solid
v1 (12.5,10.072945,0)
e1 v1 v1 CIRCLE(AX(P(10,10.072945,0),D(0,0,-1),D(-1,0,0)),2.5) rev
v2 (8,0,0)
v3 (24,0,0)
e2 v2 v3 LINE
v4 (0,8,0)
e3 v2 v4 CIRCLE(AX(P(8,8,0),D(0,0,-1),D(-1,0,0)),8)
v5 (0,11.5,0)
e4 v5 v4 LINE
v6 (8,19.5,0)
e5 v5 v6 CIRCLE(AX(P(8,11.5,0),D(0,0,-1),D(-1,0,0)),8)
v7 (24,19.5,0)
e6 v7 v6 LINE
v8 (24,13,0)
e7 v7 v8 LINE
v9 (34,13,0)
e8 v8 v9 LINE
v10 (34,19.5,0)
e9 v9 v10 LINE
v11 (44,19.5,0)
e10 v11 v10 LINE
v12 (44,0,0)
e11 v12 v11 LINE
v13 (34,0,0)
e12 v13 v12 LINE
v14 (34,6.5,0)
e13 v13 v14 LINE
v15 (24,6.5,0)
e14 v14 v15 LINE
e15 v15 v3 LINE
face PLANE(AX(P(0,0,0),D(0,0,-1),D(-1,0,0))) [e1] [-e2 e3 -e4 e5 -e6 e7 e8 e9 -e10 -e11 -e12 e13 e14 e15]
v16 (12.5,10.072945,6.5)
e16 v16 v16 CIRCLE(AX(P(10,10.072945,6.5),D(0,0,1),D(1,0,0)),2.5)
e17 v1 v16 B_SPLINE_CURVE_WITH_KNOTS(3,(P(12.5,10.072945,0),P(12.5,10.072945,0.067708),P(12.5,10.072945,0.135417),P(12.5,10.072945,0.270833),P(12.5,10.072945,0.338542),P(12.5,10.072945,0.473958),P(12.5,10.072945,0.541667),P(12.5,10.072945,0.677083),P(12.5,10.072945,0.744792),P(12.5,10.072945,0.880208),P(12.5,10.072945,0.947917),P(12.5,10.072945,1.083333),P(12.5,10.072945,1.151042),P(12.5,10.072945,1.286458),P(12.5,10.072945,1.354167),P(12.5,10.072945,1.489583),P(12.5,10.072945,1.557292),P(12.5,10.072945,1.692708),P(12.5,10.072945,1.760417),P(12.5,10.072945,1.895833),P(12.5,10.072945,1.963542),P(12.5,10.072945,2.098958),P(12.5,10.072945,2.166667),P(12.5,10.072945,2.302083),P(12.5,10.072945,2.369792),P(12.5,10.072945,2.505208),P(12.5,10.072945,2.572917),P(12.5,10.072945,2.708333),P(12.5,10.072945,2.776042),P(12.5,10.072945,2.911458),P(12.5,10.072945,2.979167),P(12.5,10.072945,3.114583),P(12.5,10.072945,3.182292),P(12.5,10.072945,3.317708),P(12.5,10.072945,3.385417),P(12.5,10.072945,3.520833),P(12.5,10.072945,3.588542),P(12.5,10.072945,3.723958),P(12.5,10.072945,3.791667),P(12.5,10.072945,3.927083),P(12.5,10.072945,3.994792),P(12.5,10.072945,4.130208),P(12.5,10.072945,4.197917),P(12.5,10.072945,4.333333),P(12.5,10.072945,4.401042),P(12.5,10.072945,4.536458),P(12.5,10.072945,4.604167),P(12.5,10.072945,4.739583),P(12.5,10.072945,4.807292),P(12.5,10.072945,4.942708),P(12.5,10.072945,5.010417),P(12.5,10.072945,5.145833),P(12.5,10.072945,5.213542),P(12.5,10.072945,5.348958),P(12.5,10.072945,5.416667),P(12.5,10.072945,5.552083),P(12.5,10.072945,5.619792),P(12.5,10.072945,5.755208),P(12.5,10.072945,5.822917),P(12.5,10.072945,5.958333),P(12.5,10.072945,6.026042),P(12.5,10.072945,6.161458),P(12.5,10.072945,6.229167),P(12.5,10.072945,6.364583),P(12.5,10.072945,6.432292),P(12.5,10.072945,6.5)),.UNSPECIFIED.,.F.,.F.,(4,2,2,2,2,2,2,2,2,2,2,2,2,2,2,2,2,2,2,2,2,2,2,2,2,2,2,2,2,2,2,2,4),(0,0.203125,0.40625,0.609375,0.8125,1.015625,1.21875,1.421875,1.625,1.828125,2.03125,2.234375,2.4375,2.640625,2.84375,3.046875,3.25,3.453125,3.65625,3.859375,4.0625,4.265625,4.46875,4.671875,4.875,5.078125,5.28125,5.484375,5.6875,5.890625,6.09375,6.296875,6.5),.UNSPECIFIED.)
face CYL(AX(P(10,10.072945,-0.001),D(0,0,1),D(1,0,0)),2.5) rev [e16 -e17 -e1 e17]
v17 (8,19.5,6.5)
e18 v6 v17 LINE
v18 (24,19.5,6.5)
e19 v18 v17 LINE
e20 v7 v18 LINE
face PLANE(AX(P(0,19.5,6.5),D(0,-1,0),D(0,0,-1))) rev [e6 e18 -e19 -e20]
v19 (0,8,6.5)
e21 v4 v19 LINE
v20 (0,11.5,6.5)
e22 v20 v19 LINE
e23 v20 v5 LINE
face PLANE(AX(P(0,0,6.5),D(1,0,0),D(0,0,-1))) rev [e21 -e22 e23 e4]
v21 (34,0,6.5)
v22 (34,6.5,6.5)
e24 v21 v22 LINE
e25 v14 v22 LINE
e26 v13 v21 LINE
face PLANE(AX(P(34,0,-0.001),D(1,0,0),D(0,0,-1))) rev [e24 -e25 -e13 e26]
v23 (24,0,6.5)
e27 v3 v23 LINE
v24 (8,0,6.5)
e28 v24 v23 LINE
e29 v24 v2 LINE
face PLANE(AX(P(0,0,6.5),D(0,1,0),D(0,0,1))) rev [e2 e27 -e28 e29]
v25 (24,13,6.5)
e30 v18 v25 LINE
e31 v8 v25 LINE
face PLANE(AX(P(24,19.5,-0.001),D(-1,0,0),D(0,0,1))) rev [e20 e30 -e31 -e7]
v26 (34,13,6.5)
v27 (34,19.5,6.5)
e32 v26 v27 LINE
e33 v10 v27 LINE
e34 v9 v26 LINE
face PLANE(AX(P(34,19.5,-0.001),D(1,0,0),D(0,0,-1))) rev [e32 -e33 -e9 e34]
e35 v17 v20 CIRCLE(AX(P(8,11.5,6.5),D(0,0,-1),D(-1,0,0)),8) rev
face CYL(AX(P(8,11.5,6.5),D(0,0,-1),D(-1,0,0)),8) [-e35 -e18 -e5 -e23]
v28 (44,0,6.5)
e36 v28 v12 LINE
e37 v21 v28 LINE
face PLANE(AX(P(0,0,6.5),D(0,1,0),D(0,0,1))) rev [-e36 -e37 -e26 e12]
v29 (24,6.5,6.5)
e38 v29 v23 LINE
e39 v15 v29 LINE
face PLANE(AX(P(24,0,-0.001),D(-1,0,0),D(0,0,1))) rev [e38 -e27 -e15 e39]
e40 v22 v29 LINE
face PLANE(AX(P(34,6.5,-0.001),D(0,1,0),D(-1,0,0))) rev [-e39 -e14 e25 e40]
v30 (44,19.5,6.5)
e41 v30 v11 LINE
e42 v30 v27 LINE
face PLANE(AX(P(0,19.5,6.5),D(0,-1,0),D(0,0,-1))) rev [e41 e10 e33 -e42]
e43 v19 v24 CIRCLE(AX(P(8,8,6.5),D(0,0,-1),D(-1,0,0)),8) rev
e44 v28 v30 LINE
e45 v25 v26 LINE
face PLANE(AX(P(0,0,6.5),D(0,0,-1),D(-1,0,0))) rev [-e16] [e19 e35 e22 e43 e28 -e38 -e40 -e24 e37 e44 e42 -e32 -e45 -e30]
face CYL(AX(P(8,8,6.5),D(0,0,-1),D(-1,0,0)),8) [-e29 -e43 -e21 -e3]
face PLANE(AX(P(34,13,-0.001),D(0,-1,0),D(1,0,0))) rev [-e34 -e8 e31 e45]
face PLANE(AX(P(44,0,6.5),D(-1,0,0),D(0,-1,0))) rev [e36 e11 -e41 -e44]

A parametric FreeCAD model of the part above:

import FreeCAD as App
import Part
import Sketcher


def edges_at(feature, points):
    """Names of the edges that pass closest to the given points."""
    edges = feature.Shape.Edges
    near = lambda p: min(range(len(edges)), key=lambda i: edges[i].distToShape(Part.Vertex(*p))[0])
    return sorted({f"Edge{near(p) + 1}" for p in points})

doc = App.newDocument("Part")
body = doc.addObject("PartDesign::Body", "Body")

# Sketch on XY plane
sketch1 = body.newObject("Sketcher::SketchObject", "Sketch")
sketch1.AttachmentSupport = (doc.getObject("XY_Plane"), [""])
sketch1.MapMode = "FlatFace"
sketch1.addGeometry(Part.LineSegment(App.Vector(0, 20, 0), App.Vector(0, 0, 0)), False)
sketch1.addGeometry(Part.LineSegment(App.Vector(0, 0, 0), App.Vector(44, 0, 0)), False)
sketch1.addGeometry(Part.LineSegment(App.Vector(44, 0, 0), App.Vector(44, 20, 0)), False)
sketch1.addGeometry(Part.LineSegment(App.Vector(44, 20, 0), App.Vector(0, 20, 0)), False)
sketch1.addConstraint(Sketcher.Constraint("Coincident", 0, 2, 1, 1))
sketch1.addConstraint(Sketcher.Constraint("Coincident", 1, 2, 2, 1))
sketch1.addConstraint(Sketcher.Constraint("Coincident", 2, 2, 3, 1))
sketch1.addConstraint(Sketcher.Constraint("Coincident", 3, 2, 0, 1))
sketch1.addConstraint(Sketcher.Constraint("Vertical", 0))
sketch1.addConstraint(Sketcher.Constraint("Horizontal", 1))
sketch1.addConstraint(Sketcher.Constraint("Vertical", 2))
sketch1.addConstraint(Sketcher.Constraint("Horizontal", 3))
sketch1.addConstraint(Sketcher.Constraint("Coincident", 0, 2, -1, 1))
sketch1.addConstraint(Sketcher.Constraint("DistanceX", 1, 1, 1, 2, 44.0))
sketch1.addConstraint(Sketcher.Constraint("DistanceY", 0, 2, 0, 1, 19.5))
pad1 = body.newObject("PartDesign::Pad", "Pad")
pad1.Profile = sketch1
pad1.Length = 6.5

# Sketch on XY plane
sketch2 = body.newObject("Sketcher::SketchObject", "Sketch001")
sketch2.AttachmentSupport = (doc.getObject("XY_Plane"), [""])
sketch2.MapMode = "FlatFace"
sketch2.AttachmentOffset = App.Placement(App.Vector(0, 0, 6.5), App.Rotation())
sketch2.addGeometry(Part.LineSegment(App.Vector(24, 20, 0), App.Vector(24, 13, 0)), False)
sketch2.addGeometry(Part.LineSegment(App.Vector(24, 13, 0), App.Vector(34, 13, 0)), False)
sketch2.addGeometry(Part.LineSegment(App.Vector(34, 13, 0), App.Vector(34, 20, 0)), False)
sketch2.addGeometry(Part.LineSegment(App.Vector(34, 20, 0), App.Vector(24, 20, 0)), False)
sketch2.addConstraint(Sketcher.Constraint("Coincident", 0, 2, 1, 1))
sketch2.addConstraint(Sketcher.Constraint("Coincident", 1, 2, 2, 1))
sketch2.addConstraint(Sketcher.Constraint("Coincident", 2, 2, 3, 1))
sketch2.addConstraint(Sketcher.Constraint("Coincident", 3, 2, 0, 1))
sketch2.addConstraint(Sketcher.Constraint("Vertical", 0))
sketch2.addConstraint(Sketcher.Constraint("Horizontal", 1))
sketch2.addConstraint(Sketcher.Constraint("Vertical", 2))
sketch2.addConstraint(Sketcher.Constraint("Horizontal", 3))
sketch2.addConstraint(Sketcher.Constraint("DistanceX", 1, 1, 1, 2, 10.0))
sketch2.addConstraint(Sketcher.Constraint("DistanceY", 0, 2, 0, 1, 6.5))
sketch2.addConstraint(Sketcher.Constraint("DistanceX", -1, 1, 0, 2, 24.0))
sketch2.addConstraint(Sketcher.Constraint("DistanceY", -1, 1, 0, 2, 13.0))
pocket1 = body.newObject("PartDesign::Pocket", "Pocket")
pocket1.Profile = sketch2
pocket1.Type = "UpToFirst"

# Sketch on XY plane
sketch3 = body.newObject("Sketcher::SketchObject", "Sketch002")
sketch3.AttachmentSupport = (doc.getObject("XY_Plane"), [""])
sketch3.MapMode = "FlatFace"
sketch3.AttachmentOffset = App.Placement(App.Vector(0, 0, 6.5), App.Rotation())
sketch3.addGeometry(Part.LineSegment(App.Vector(24, 6, 0), App.Vector(24, 0, 0)), False)
sketch3.addGeometry(Part.LineSegment(App.Vector(24, 0, 0), App.Vector(34, 0, 0)), False)
sketch3.addGeometry(Part.LineSegment(App.Vector(34, 0, 0), App.Vector(34, 6, 0)), False)
sketch3.addGeometry(Part.LineSegment(App.Vector(34, 6, 0), App.Vector(24, 6, 0)), False)
sketch3.addConstraint(Sketcher.Constraint("Coincident", 0, 2, 1, 1))
sketch3.addConstraint(Sketcher.Constraint("Coincident", 1, 2, 2, 1))
sketch3.addConstraint(Sketcher.Constraint("Coincident", 2, 2, 3, 1))
sketch3.addConstraint(Sketcher.Constraint("Coincident", 3, 2, 0, 1))
sketch3.addConstraint(Sketcher.Constraint("Vertical", 0))
sketch3.addConstraint(Sketcher.Constraint("Horizontal", 1))
sketch3.addConstraint(Sketcher.Constraint("Vertical", 2))
sketch3.addConstraint(Sketcher.Constraint("Horizontal", 3))
sketch3.addConstraint(Sketcher.Constraint("PointOnObject", 0, 2, -1))
sketch3.addConstraint(Sketcher.Constraint("DistanceX", 1, 1, 1, 2, 10.0))
sketch3.addConstraint(Sketcher.Constraint("DistanceY", 0, 2, 0, 1, 6.5))
sketch3.addConstraint(Sketcher.Constraint("DistanceX", -1, 1, 0, 2, 24.0))
pocket2 = body.newObject("PartDesign::Pocket", "Pocket001")
pocket2.Profile = sketch3
pocket2.Type = "UpToFirst"
doc.recompute()

fillet = body.newObject("PartDesign::Fillet", "Fillet")
fillet.Base = (pocket2, edges_at(pocket2, [(0, 19.5, 3.25), (0, 0, 3.25)]))
fillet.Radius = 8

# Sketch on XY plane
sketch4 = body.newObject("Sketcher::SketchObject", "Sketch003")
sketch4.AttachmentSupport = (doc.getObject("XY_Plane"), [""])
sketch4.MapMode = "FlatFace"
sketch4.AttachmentOffset = App.Placement(App.Vector(0, 0, 6.5), App.Rotation())
sketch4.addGeometry(Part.Circle(App.Vector(10, 10.1, 0), App.Vector(0, 0, 1), 2.5), False)
sketch4.addConstraint(Sketcher.Constraint("Diameter", 0, 5.0))
sketch4.addConstraint(Sketcher.Constraint("DistanceX", -1, 1, 0, 3, 10.0))
sketch4.addConstraint(Sketcher.Constraint("DistanceY", -1, 1, 0, 3, 10.072945))
pocket3 = body.newObject("PartDesign::Pocket", "Pocket002")
pocket3.Profile = sketch4
pocket3.Type = "UpToFirst"

doc.recompute()
